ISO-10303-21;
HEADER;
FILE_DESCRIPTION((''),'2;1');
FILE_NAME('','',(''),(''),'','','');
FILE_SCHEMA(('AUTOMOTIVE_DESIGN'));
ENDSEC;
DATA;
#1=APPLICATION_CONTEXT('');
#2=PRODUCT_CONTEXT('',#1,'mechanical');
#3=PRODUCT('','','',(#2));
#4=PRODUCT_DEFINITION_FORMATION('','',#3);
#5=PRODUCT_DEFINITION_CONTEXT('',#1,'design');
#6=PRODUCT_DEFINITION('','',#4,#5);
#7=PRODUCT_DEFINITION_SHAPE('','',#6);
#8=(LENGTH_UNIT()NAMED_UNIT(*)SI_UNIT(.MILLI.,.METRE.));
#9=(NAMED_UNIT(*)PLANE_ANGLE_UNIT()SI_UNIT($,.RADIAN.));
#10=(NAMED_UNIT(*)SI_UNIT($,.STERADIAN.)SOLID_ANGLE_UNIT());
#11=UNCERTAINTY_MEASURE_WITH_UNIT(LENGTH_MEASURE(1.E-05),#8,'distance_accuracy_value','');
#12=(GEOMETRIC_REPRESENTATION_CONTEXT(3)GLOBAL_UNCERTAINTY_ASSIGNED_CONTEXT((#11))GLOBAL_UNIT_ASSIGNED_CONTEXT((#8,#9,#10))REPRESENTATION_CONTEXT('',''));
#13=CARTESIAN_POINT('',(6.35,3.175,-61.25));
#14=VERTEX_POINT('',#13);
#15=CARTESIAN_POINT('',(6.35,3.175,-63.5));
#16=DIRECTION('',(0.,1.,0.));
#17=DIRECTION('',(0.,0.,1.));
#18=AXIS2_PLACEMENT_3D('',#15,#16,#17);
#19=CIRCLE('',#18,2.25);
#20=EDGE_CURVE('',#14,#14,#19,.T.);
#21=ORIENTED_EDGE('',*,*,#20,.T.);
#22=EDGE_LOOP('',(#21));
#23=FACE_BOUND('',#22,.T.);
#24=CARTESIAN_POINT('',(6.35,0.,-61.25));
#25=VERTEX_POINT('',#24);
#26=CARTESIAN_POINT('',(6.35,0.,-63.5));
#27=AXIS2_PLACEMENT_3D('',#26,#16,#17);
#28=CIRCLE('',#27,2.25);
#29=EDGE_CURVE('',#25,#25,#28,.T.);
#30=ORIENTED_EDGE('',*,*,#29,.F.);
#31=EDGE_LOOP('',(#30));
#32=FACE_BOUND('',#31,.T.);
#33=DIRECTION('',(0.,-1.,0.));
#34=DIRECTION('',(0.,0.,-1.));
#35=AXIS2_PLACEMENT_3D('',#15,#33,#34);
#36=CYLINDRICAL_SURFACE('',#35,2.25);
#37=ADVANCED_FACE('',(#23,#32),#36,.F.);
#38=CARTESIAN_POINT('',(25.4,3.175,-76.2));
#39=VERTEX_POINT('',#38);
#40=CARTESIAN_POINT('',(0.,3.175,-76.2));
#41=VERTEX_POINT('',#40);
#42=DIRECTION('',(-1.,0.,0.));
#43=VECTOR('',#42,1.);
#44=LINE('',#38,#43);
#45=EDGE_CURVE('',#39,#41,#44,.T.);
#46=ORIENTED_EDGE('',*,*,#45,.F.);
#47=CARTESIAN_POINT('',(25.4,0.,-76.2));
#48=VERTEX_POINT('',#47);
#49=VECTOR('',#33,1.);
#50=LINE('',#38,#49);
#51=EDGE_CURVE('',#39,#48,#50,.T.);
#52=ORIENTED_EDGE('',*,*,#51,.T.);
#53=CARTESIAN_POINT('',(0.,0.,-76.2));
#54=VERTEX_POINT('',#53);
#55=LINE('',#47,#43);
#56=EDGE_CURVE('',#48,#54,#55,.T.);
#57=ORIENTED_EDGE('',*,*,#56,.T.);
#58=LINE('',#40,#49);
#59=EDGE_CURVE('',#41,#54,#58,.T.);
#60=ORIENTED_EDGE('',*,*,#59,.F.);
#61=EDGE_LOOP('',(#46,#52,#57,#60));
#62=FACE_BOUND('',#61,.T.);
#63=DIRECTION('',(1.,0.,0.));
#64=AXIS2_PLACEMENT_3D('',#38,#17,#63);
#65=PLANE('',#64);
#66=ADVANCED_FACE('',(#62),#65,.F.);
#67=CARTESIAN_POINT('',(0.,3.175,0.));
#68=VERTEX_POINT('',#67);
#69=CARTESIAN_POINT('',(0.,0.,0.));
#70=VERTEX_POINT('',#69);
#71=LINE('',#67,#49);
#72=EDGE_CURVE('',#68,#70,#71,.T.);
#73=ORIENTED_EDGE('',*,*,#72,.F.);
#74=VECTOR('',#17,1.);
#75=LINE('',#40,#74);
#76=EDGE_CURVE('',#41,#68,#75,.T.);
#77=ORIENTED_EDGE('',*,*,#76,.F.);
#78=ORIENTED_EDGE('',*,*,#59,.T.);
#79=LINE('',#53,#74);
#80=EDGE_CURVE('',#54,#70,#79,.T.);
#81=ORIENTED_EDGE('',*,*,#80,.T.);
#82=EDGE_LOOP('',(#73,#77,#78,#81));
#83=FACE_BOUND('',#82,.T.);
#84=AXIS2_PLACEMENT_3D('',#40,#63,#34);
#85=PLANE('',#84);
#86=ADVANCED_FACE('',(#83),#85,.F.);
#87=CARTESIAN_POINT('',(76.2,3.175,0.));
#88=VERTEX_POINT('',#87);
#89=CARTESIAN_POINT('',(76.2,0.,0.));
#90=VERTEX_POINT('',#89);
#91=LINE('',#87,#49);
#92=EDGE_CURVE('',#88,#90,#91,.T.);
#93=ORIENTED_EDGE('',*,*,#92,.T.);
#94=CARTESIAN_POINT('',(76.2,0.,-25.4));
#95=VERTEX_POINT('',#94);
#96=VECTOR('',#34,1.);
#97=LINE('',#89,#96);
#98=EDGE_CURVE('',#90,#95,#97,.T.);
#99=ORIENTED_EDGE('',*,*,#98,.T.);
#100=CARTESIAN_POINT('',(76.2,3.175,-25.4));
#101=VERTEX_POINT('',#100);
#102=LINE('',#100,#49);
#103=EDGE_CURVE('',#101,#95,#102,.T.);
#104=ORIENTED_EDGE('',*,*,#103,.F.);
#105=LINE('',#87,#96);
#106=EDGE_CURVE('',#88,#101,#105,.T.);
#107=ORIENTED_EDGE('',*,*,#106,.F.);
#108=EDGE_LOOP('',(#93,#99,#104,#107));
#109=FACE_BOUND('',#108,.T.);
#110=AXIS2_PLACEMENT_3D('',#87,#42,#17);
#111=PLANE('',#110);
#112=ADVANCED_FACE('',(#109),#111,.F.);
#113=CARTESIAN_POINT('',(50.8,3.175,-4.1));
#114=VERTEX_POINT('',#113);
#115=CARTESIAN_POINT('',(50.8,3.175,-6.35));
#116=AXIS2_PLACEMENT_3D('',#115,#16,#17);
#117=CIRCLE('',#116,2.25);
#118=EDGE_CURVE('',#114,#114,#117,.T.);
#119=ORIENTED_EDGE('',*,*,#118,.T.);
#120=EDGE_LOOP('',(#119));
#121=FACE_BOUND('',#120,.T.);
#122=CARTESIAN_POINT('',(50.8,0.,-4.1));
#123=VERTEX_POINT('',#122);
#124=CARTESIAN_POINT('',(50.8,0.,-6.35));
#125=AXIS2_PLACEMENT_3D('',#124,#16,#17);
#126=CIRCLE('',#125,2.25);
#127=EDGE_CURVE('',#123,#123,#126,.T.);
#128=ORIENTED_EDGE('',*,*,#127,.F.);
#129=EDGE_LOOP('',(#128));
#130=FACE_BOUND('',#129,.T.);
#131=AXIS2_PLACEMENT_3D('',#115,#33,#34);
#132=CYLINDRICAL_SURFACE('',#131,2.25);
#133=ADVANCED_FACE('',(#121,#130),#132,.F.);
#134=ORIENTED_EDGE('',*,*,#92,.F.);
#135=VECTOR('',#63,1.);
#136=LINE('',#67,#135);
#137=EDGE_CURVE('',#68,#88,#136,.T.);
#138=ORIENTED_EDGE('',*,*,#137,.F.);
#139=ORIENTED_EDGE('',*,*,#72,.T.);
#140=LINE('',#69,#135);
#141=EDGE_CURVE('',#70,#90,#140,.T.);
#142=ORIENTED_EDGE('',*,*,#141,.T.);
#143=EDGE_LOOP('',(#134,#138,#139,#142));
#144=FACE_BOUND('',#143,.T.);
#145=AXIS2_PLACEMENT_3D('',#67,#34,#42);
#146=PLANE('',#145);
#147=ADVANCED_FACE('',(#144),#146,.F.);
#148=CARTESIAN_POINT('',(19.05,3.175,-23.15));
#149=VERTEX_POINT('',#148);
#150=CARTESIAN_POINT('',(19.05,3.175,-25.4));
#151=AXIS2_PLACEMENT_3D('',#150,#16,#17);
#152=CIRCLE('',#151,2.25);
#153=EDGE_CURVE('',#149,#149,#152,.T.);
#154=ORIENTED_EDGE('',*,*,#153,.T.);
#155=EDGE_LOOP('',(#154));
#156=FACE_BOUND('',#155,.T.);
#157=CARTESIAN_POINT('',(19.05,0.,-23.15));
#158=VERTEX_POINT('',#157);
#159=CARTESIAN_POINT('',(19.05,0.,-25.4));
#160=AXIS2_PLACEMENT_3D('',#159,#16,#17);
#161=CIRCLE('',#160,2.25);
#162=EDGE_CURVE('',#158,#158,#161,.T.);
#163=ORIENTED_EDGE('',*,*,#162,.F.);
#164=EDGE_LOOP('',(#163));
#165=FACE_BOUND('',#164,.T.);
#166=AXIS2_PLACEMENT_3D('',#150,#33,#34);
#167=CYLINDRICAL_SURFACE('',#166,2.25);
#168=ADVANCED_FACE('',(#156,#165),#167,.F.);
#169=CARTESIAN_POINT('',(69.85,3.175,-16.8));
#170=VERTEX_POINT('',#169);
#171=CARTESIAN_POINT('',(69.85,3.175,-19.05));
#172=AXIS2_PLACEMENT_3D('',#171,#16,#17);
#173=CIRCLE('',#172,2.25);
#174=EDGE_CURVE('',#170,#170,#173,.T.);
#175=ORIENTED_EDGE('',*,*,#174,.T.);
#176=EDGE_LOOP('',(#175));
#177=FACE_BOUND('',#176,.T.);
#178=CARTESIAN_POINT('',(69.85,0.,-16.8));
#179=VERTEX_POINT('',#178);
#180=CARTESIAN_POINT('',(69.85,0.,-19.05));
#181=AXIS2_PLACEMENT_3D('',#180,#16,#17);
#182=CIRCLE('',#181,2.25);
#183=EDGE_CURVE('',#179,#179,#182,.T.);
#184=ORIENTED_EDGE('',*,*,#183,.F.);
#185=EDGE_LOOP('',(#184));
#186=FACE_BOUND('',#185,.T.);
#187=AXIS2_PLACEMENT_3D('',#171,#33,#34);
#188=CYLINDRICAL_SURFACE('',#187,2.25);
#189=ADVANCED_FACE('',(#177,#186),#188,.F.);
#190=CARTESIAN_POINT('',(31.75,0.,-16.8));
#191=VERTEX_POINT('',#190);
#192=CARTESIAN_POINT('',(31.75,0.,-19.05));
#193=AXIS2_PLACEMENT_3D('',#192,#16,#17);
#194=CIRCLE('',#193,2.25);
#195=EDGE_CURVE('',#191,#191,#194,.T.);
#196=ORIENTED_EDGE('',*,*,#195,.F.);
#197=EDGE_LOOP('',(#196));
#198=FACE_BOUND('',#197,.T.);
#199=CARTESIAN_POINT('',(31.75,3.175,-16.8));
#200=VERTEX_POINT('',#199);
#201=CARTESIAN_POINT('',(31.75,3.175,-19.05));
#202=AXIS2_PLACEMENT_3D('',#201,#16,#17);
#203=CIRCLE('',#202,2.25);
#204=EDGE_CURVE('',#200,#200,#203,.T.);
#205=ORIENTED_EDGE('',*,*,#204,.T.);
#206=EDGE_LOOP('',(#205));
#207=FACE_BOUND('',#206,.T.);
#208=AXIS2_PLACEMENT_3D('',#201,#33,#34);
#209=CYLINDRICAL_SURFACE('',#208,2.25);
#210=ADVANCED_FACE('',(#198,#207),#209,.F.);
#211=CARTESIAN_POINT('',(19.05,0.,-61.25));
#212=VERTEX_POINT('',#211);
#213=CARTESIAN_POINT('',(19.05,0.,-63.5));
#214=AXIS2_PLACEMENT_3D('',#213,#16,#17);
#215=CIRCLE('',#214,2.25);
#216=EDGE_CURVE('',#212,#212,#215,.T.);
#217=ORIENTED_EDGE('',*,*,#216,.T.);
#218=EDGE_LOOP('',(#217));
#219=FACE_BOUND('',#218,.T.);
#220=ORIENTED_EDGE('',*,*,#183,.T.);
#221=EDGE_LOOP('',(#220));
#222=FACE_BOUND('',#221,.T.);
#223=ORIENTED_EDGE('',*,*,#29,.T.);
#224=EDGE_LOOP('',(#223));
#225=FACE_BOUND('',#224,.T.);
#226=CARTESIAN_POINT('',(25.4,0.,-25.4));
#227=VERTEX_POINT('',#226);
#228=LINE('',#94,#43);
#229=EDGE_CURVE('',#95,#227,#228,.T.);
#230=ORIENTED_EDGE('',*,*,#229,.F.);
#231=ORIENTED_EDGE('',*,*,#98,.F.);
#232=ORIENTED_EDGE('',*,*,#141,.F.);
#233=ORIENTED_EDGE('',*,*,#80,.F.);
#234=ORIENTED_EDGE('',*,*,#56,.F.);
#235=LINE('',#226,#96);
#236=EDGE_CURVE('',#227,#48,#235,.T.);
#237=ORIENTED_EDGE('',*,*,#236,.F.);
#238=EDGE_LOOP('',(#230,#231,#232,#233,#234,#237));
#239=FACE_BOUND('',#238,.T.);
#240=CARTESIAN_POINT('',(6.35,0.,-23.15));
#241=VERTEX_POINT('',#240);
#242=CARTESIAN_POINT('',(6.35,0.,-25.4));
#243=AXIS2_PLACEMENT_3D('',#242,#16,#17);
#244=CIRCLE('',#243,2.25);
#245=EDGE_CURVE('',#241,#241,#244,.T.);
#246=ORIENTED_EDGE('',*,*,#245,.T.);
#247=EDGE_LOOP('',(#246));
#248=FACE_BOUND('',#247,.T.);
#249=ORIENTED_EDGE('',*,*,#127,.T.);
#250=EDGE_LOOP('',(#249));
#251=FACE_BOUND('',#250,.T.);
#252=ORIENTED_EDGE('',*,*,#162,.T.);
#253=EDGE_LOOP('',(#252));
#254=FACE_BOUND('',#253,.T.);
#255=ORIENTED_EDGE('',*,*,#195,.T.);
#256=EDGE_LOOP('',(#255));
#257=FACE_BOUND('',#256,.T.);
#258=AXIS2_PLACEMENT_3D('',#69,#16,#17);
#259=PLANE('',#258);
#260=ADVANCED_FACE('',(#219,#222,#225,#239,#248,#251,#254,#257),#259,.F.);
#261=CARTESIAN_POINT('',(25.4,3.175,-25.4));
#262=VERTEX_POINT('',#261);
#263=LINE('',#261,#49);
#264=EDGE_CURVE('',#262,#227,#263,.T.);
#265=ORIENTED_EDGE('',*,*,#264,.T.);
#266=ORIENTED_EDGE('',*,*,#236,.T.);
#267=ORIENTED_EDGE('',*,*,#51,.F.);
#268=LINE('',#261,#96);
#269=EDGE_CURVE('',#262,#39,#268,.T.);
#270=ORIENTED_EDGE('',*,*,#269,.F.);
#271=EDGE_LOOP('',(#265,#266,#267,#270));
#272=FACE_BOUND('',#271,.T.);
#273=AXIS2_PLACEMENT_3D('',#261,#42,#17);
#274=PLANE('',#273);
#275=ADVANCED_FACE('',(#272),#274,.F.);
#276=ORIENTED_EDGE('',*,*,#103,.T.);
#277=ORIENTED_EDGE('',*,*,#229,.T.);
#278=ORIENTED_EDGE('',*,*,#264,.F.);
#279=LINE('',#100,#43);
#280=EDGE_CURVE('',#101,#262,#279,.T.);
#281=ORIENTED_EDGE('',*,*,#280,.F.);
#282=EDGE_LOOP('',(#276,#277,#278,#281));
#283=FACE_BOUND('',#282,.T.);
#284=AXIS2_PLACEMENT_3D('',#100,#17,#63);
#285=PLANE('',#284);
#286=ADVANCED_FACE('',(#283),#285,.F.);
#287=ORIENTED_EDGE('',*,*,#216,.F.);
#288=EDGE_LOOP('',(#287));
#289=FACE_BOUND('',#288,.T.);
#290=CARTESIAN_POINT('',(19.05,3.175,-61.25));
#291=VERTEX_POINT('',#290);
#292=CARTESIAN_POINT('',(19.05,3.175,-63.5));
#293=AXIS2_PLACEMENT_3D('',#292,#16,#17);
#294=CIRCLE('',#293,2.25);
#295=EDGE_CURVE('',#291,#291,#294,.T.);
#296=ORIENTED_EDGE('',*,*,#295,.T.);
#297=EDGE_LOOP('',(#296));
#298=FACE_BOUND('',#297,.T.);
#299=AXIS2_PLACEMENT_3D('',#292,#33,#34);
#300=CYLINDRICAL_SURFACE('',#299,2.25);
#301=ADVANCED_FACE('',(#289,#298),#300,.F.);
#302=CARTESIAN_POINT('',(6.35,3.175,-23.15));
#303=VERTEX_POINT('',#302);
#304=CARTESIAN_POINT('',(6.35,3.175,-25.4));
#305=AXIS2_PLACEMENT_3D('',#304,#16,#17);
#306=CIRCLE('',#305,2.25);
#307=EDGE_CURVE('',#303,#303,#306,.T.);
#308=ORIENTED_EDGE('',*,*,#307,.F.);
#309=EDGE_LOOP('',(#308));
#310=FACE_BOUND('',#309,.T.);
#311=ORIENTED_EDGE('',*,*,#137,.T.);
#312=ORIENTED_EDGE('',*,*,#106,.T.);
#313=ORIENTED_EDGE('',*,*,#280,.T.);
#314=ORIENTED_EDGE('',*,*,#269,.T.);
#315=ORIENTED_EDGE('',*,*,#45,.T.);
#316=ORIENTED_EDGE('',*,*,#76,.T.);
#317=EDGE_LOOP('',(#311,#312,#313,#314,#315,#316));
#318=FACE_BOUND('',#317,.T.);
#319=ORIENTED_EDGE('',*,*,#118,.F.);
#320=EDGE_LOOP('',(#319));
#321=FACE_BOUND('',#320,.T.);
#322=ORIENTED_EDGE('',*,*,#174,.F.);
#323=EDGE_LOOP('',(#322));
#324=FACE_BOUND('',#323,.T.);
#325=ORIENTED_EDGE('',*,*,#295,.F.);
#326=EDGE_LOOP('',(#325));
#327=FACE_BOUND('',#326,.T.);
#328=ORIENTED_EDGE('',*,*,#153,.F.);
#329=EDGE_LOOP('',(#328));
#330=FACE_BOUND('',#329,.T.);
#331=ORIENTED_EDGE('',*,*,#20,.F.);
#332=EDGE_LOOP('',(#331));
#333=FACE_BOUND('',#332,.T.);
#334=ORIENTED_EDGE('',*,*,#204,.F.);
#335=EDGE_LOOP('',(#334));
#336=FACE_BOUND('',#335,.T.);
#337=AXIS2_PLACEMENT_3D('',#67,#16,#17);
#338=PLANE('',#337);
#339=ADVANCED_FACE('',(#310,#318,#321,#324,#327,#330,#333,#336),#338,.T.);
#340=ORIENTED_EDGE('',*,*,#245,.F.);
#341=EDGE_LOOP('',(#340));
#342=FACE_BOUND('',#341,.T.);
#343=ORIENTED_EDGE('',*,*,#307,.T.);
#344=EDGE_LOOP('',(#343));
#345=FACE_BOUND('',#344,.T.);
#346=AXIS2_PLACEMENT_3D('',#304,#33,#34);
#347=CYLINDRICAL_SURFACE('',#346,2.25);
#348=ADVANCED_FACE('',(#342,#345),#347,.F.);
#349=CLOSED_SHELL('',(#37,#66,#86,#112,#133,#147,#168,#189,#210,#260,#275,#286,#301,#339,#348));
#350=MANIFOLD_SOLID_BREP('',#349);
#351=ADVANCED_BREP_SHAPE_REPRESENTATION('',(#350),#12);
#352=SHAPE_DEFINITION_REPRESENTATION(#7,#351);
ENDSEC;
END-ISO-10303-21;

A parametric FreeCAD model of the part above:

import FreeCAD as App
import Part
import Sketcher
Q = App.Units.Quantity


def add_polygon(sketch, points):
    """Adds a closed chain of lines whose ends are joined by coincident constraints."""
    first, n = sketch.GeometryCount, len(points)
    for a, b in zip(points, points[1:] + points[:1]):
        sketch.addGeometry(Part.LineSegment(App.Vector(*a, 0), App.Vector(*b, 0)), False)
    for i in range(n):
        sketch.addConstraint(Sketcher.Constraint("Coincident", first + i, 2, first + (i + 1) % n, 1))

doc = App.newDocument("Part")
body = doc.addObject("PartDesign::Body", "Body")

# Sketch on XZ plane
sketch1 = doc.addObject("Sketcher::SketchObject", "Sketch")
body.addObject(sketch1)
sketch1.AttachmentSupport = (doc.XZ_Plane, [""])
sketch1.MapMode = "FlatFace"
add_polygon(sketch1, [(0, 0), (76.2, 0), (76.2, -25.4), (25.4, -25.4), (25.4, -76.2), (0, -76.2)])  # lines 0-5
sketch1.addGeometry(Part.Circle(App.Vector(31.75, -19.05, 0), App.Vector(0, 0, 1), 2.25), False)  # 6
sketch1.addGeometry(Part.Circle(App.Vector(6.35, -25.4, 0), App.Vector(0, 0, 1), 2.25), False)  # 7
sketch1.addGeometry(Part.Circle(App.Vector(19.05, -25.4, 0), App.Vector(0, 0, 1), 2.25), False)  # 8
sketch1.addGeometry(Part.Circle(App.Vector(50.8, -6.35, 0), App.Vector(0, 0, 1), 2.25), False)  # 9
sketch1.addGeometry(Part.Circle(App.Vector(69.85, -19.05, 0), App.Vector(0, 0, 1), 2.25), False)  # 10
sketch1.addGeometry(Part.Circle(App.Vector(6.35, -63.5, 0), App.Vector(0, 0, 1), 2.25), False)  # 11
sketch1.addGeometry(Part.Circle(App.Vector(19.05, -63.5, 0), App.Vector(0, 0, 1), 2.25), False)  # 12
sketch1.addConstraint(Sketcher.Constraint("Horizontal", 0))
sketch1.addConstraint(Sketcher.Constraint("Vertical", 1))
sketch1.addConstraint(Sketcher.Constraint("Horizontal", 2))
sketch1.addConstraint(Sketcher.Constraint("Vertical", 3))
sketch1.addConstraint(Sketcher.Constraint("Horizontal", 4))
sketch1.addConstraint(Sketcher.Constraint("Vertical", 5))
sketch1.addConstraint(Sketcher.Constraint("Coincident", 5, 2, -1, 1))
sketch1.addConstraint(Sketcher.Constraint("Equal", 6, 7))
sketch1.addConstraint(Sketcher.Constraint("Equal", 7, 8))
sketch1.addConstraint(Sketcher.Constraint("Equal", 8, 9))
sketch1.addConstraint(Sketcher.Constraint("Equal", 9, 10))
sketch1.addConstraint(Sketcher.Constraint("Equal", 10, 11))
sketch1.addConstraint(Sketcher.Constraint("Equal", 11, 12))
sketch1.addConstraint(Sketcher.Constraint("Horizontal", 7, 3, 8, 3))
sketch1.addConstraint(Sketcher.Constraint("Horizontal", 6, 3, 10, 3))
sketch1.addConstraint(Sketcher.Constraint("Horizontal", 11, 3, 12, 3))
sketch1.addConstraint(Sketcher.Constraint("Horizontal", 8, 3, 1, 2))
sketch1.addConstraint(Sketcher.Constraint("Vertical", 7, 3, 11, 3))
sketch1.addConstraint(Sketcher.Constraint("Vertical", 8, 3, 12, 3))
sketch1.addConstraint(Sketcher.Constraint("Equal", 4, 1))
sketch1.addConstraint(Sketcher.Constraint("Equal", 2, 3))
sketch1.addConstraint(Sketcher.Constraint("DistanceX", 0, 1, 0, 2, Q("3 in")))
sketch1.addConstraint(Sketcher.Constraint("DistanceX", 2, 2, 2, 1, Q("2 in")))
sketch1.addConstraint(Sketcher.Constraint("DistanceX", -1, 1, 9, 3, Q("2 in")))
sketch1.addConstraint(Sketcher.Constraint("DistanceX", 7, 3, 6, 3, Q("1 in")))
sketch1.addConstraint(Sketcher.Constraint("DistanceX", 8, 3, 10, 3, Q("2 in")))
sketch1.addConstraint(Sketcher.Constraint("DistanceY", 11, 3, -1, 1, Q("2.5 in")))
sketch1.addConstraint(Sketcher.Constraint("DistanceX", 7, 3, 8, 3, Q("0.5 in")))
sketch1.addConstraint(Sketcher.Constraint("DistanceY", 6, 3, 9, 3, Q("0.5 in")))
sketch1.addConstraint(Sketcher.Constraint("Diameter", 6, Q("4.5 mm")))
sketch1.addConstraint(Sketcher.Constraint("DistanceX", -1, 1, 6, 3, Q("1.25 in")))
sketch1.addConstraint(Sketcher.Constraint("DistanceY", 6, 3, -1, 1, Q("0.75 in")))
pad1 = doc.addObject("PartDesign::Pad", "Pad")
body.addObject(pad1)
pad1.Profile = sketch1
pad1.Length = Q("0.125 in")
pad1.Reversed = True

doc.recompute()
